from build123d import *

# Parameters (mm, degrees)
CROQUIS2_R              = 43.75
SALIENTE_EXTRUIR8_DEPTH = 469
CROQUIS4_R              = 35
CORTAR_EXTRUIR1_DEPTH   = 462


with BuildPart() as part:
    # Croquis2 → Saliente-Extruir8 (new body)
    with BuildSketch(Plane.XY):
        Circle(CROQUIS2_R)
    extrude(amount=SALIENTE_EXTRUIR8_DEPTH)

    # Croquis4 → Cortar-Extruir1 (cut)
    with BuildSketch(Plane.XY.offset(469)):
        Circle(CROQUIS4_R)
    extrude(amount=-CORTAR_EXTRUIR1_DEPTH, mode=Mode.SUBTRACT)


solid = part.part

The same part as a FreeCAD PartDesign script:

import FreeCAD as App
import Part
import Sketcher
from FreeCAD import Vector

doc = App.newDocument("Part")
body = doc.addObject("PartDesign::Body", "Body")

# Sketch on XY plane
sketch1 = body.newObject("Sketcher::SketchObject", "Sketch")
sketch1.AttachmentSupport = (doc.getObject("XY_Plane"), [""])
sketch1.MapMode = "FlatFace"
sketch1.addGeometry(Part.Circle(Vector(0, 0, 0), Vector(0, 0, 1), 43.75), False)
sketch1.addConstraint(Sketcher.Constraint("Coincident", 0, 3, -1, 1))
sketch1.addConstraint(Sketcher.Constraint("Diameter", 0, 87.5))
pad1 = body.newObject("PartDesign::Pad", "Pad")
pad1.Profile = sketch1
pad1.Length = 469

# Sketch on XY plane
sketch2 = body.newObject("Sketcher::SketchObject", "Sketch001")
sketch2.AttachmentSupport = (doc.getObject("XY_Plane"), [""])
sketch2.MapMode = "FlatFace"
sketch2.AttachmentOffset = App.Placement(Vector(0, 0, 469), App.Rotation())
sketch2.addGeometry(Part.Circle(Vector(0, 0, 0), Vector(0, 0, 1), 35), False)
sketch2.addConstraint(Sketcher.Constraint("Coincident", 0, 3, -1, 1))
sketch2.addConstraint(Sketcher.Constraint("Diameter", 0, 70.0))
pocket1 = body.newObject("PartDesign::Pocket", "Pocket")
pocket1.Profile = sketch2
pocket1.Length = 462

doc.recompute()
